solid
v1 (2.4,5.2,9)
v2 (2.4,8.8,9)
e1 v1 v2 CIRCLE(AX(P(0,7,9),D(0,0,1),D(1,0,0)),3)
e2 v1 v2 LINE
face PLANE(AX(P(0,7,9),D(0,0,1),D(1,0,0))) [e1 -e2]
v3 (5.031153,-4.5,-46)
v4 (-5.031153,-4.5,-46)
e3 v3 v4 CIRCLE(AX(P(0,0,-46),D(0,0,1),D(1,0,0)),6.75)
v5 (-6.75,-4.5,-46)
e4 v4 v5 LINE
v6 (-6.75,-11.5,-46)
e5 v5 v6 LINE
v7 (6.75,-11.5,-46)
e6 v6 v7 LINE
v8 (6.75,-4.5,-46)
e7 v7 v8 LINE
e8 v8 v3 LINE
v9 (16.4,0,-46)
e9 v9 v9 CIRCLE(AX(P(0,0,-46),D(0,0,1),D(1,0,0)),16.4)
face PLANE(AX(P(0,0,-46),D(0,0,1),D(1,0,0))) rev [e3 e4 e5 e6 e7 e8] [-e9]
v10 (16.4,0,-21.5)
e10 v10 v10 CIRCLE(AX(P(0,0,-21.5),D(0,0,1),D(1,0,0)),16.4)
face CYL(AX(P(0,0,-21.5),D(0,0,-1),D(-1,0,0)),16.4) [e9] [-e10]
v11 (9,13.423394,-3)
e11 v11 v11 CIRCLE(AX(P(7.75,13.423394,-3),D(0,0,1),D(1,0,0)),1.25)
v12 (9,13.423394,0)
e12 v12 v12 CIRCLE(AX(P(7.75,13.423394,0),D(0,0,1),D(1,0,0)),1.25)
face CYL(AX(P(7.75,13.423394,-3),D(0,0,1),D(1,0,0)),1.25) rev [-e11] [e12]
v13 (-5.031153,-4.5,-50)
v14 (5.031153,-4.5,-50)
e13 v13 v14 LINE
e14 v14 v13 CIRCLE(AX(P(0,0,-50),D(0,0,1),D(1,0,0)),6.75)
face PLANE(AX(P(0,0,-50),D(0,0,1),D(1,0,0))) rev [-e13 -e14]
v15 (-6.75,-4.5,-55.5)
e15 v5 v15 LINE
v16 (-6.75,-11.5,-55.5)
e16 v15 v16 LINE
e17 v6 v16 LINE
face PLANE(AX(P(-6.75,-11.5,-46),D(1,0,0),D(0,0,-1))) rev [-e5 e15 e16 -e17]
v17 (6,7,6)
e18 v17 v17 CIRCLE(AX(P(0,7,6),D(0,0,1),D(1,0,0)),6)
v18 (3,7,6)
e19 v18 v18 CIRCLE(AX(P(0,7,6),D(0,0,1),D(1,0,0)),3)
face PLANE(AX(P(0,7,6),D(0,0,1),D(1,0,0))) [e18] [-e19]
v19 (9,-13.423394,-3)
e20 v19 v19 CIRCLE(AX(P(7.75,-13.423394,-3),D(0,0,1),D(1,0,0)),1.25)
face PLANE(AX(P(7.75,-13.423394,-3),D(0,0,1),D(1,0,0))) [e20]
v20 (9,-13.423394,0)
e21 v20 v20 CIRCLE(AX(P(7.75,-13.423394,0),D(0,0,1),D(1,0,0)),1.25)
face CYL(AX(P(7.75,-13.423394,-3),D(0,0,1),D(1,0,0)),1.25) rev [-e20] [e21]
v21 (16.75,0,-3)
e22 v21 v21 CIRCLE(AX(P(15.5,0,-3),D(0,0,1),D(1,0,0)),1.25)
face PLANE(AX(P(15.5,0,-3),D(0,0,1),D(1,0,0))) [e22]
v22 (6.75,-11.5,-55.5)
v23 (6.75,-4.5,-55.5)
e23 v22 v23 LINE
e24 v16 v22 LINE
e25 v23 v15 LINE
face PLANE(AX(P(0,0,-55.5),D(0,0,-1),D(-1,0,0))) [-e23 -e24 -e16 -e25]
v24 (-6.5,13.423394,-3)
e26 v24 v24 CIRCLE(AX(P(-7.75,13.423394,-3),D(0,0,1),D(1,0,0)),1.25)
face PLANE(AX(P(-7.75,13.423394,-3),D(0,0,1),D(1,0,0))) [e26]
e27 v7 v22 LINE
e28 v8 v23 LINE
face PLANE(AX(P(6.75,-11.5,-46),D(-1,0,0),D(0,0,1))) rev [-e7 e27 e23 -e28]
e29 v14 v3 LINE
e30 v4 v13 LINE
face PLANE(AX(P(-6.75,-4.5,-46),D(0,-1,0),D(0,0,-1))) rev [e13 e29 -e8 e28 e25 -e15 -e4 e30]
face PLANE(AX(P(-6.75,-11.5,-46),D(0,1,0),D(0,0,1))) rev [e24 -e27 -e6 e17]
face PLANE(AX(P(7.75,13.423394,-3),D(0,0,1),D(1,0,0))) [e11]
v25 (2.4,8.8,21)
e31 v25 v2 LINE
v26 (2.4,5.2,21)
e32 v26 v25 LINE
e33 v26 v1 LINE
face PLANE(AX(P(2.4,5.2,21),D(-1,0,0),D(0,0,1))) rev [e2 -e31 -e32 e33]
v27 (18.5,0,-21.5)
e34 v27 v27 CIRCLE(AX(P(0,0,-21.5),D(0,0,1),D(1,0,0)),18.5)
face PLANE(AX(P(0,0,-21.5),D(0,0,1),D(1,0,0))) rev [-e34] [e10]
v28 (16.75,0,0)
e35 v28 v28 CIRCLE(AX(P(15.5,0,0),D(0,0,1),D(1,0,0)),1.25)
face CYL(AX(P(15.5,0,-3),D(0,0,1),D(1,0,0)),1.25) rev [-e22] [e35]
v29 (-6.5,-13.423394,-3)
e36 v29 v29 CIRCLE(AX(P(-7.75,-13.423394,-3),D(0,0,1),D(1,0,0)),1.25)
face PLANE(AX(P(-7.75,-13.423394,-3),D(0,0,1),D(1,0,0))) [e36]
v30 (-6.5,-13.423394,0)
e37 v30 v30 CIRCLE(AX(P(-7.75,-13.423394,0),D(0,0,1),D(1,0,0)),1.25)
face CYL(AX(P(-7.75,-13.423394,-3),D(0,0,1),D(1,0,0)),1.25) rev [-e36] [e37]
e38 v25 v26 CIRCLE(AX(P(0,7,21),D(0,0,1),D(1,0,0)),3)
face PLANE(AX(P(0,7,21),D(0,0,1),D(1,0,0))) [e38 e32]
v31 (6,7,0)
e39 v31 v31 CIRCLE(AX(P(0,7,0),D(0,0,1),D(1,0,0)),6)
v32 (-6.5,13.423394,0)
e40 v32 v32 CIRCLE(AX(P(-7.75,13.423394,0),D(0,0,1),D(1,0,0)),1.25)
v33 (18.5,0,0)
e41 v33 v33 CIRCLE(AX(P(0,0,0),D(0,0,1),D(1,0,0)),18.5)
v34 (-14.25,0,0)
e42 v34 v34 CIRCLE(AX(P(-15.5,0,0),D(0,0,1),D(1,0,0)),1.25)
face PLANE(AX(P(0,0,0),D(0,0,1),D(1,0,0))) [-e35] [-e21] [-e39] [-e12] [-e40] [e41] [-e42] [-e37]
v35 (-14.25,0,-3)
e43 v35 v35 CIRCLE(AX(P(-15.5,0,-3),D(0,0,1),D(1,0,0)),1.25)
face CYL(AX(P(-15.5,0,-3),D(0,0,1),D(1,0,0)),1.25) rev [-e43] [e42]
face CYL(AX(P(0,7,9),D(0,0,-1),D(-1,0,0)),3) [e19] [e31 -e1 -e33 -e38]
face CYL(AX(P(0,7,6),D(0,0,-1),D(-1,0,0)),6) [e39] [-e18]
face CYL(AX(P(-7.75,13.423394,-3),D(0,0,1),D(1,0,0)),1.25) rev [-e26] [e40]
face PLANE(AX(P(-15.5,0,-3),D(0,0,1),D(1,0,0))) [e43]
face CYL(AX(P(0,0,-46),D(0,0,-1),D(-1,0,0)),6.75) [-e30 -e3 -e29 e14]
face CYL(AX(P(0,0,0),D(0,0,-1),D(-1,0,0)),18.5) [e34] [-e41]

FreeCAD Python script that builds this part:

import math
import FreeCAD as App
import Part
import Sketcher
from FreeCAD import Vector
Q = App.Units.Quantity


def add_polygon(sketch, points):
    """Adds a closed chain of lines whose ends are joined by coincident constraints."""
    first, n = sketch.GeometryCount, len(points)
    for a, b in zip(points, points[1:] + points[:1]):
        sketch.addGeometry(Part.LineSegment(App.Vector(*a, 0), App.Vector(*b, 0)), False)
    for i in range(n):
        sketch.addConstraint(Sketcher.Constraint("Coincident", first + i, 2, first + (i + 1) % n, 1))

doc = App.newDocument("Part")
body = doc.addObject("PartDesign::Body", "Body")

sketch1 = body.newObject("Sketcher::SketchObject", "Sketch")
sketch1.AttachmentSupport = (doc.getObject("XY_Plane"), [""])
sketch1.MapMode = "FlatFace"
sketch1.AttachmentOffset = App.Placement(Vector(0, 0, -21.5), App.Rotation())
sketch1.addGeometry(Part.Circle(Vector(0, 0, 0), Vector(0, 0, 1), 18.5), False)
sketch1.addConstraint(Sketcher.Constraint("Coincident", 0, 3, -1, 1))
sketch1.addConstraint(Sketcher.Constraint("Diameter", 0, Q("37 mm")))
pad1 = body.newObject("PartDesign::Pad", "Pad")
pad1.Profile = sketch1
pad1.Length = 21.5

sketch2 = body.newObject("Sketcher::SketchObject", "Sketch001")
sketch2.AttachmentSupport = (doc.getObject("XY_Plane"), [""])
sketch2.MapMode = "FlatFace"
sketch2.AttachmentOffset = App.Placement(Vector(0, 0, -44.5), App.Rotation())
sketch2.addGeometry(Part.Circle(Vector(0, 0, 0), Vector(0, 0, 1), 16.4), False)
sketch2.addConstraint(Sketcher.Constraint("Coincident", 0, 3, -1, 1))
sketch2.addConstraint(Sketcher.Constraint("Diameter", 0, Q("32.8 mm")))
pad2 = body.newObject("PartDesign::Pad", "Pad001")
pad2.Profile = sketch2
pad2.Length = 23

sketch3 = body.newObject("Sketcher::SketchObject", "Sketch002")
sketch3.AttachmentSupport = (doc.getObject("XY_Plane"), [""])
sketch3.MapMode = "FlatFace"
sketch3.AttachmentOffset = App.Placement(Vector(0, 0, -46), App.Rotation())
sketch3.addGeometry(Part.Circle(Vector(0, 0, 0), Vector(0, 0, 1), 16.4), False)
sketch3.addConstraint(Sketcher.Constraint("Coincident", 0, 3, -1, 1))
sketch3.addConstraint(Sketcher.Constraint("Diameter", 0, Q("32.8 mm")))
pad3 = body.newObject("PartDesign::Pad", "Pad002")
pad3.Profile = sketch3
pad3.Length = 1.5

sketch4 = body.newObject("Sketcher::SketchObject", "Sketch003")
sketch4.AttachmentSupport = (doc.getObject("XY_Plane"), [""])
sketch4.MapMode = "FlatFace"
sketch4.AttachmentOffset = App.Placement(Vector(0, 0, -50), App.Rotation())
sketch4.addGeometry(Part.Circle(Vector(0, 0, 0), Vector(0, 0, 1), 6.75), False)
sketch4.addConstraint(Sketcher.Constraint("Coincident", 0, 3, -1, 1))
sketch4.addConstraint(Sketcher.Constraint("Diameter", 0, Q("13.5 mm")))
pad4 = body.newObject("PartDesign::Pad", "Pad003")
pad4.Profile = sketch4
pad4.Length = 4

sketch5 = body.newObject("Sketcher::SketchObject", "Sketch004")
sketch5.AttachmentSupport = (doc.getObject("XY_Plane"), [""])
sketch5.MapMode = "FlatFace"
sketch5.AttachmentOffset = App.Placement(Vector(0, 0, -55.5), App.Rotation())
add_polygon(sketch5, [(-6.75, -4.5), (-6.75, -11.5), (6.75, -11.5), (6.75, -4.5)])
sketch5.addConstraint(Sketcher.Constraint("Vertical", 0))
sketch5.addConstraint(Sketcher.Constraint("Horizontal", 1))
sketch5.addConstraint(Sketcher.Constraint("Vertical", 2))
sketch5.addConstraint(Sketcher.Constraint("Horizontal", 3))
sketch5.addConstraint(Sketcher.Constraint("DistanceY", 0, 2, 0, 1, Q("7 mm")))
sketch5.addConstraint(Sketcher.Constraint("DistanceX", 1, 1, 1, 2, Q("13.5 mm")))
sketch5.addConstraint(Sketcher.Constraint("DistanceY", 0, 2, -1, 1, Q("11.5 mm")))
sketch5.addConstraint(Sketcher.Constraint("DistanceX", 0, 2, -1, 1, Q("6.75 mm")))
pad5 = body.newObject("PartDesign::Pad", "Pad004")
pad5.Profile = sketch5
pad5.Length = 9.5

sketch6 = body.newObject("Sketcher::SketchObject", "Sketch005")
sketch6.AttachmentSupport = (doc.getObject("XY_Plane"), [""])
sketch6.MapMode = "FlatFace"
sketch6.addGeometry(Part.Circle(Vector(0, 7, 0), Vector(0, 0, 1), 6), False)
sketch6.addConstraint(Sketcher.Constraint("PointOnObject", 0, 3, -2))
sketch6.addConstraint(Sketcher.Constraint("Diameter", 0, Q("12 mm")))
sketch6.addConstraint(Sketcher.Constraint("DistanceY", -1, 1, 0, 3, Q("7 mm")))
pad6 = body.newObject("PartDesign::Pad", "Pad005")
pad6.Profile = sketch6
pad6.Length = 6

sketch7 = body.newObject("Sketcher::SketchObject", "Sketch006")
sketch7.AttachmentSupport = (doc.getObject("XY_Plane"), [""])
sketch7.MapMode = "FlatFace"
sketch7.AttachmentOffset = App.Placement(Vector(0, 0, 6), App.Rotation())
sketch7.addGeometry(Part.Circle(Vector(0, 7, 0), Vector(0, 0, 1), 3), False)
sketch7.addConstraint(Sketcher.Constraint("PointOnObject", 0, 3, -2))
sketch7.addConstraint(Sketcher.Constraint("Diameter", 0, Q("6 mm")))
sketch7.addConstraint(Sketcher.Constraint("DistanceY", -1, 1, 0, 3, Q("7 mm")))
pad7 = body.newObject("PartDesign::Pad", "Pad006")
pad7.Profile = sketch7
pad7.Length = 3

sketch8 = body.newObject("Sketcher::SketchObject", "Sketch007")
sketch8.AttachmentSupport = (doc.getObject("XY_Plane"), [""])
sketch8.MapMode = "FlatFace"
sketch8.AttachmentOffset = App.Placement(Vector(0, 0, 9), App.Rotation())
sketch8.addGeometry(Part.LineSegment(Vector(2.4, 5.2, 0), Vector(2.4, 8.8, 0)), False)
sketch8.addGeometry(Part.ArcOfCircle(Part.Circle(Vector(0, 7, 0), Vector(0, 0, 1), 3), math.radians(36.869898), math.radians(323.130102)), False)
sketch8.addConstraint(Sketcher.Constraint("Coincident", 0, 1, 1, 2))
sketch8.addConstraint(Sketcher.Constraint("Coincident", 1, 1, 0, 2))
sketch8.addConstraint(Sketcher.Constraint("Vertical", 0))
sketch8.addConstraint(Sketcher.Constraint("PointOnObject", 1, 3, -2))
sketch8.addConstraint(Sketcher.Constraint("Radius", 1, Q("3 mm")))
sketch8.addConstraint(Sketcher.Constraint("DistanceY", 0, 1, 0, 2, Q("3.6 mm")))
sketch8.addConstraint(Sketcher.Constraint("DistanceY", -1, 1, 1, 3, Q("7 mm")))
pad8 = body.newObject("PartDesign::Pad", "Pad007")
pad8.Profile = sketch8
pad8.Length = 12

sketch9 = body.newObject("Sketcher::SketchObject", "Sketch008")
sketch9.AttachmentSupport = (doc.getObject("XY_Plane"), [""])
sketch9.MapMode = "FlatFace"
sketch9.addGeometry(Part.Circle(Vector(15.5, 0, 0), Vector(0, 0, 1), 1.25), False)
sketch9.addGeometry(Part.Circle(Vector(7.75, 13.423394, 0), Vector(0, 0, 1), 1.25), False)
sketch9.addGeometry(Part.Circle(Vector(-7.75, 13.423394, 0), Vector(0, 0, 1), 1.25), False)
sketch9.addGeometry(Part.Circle(Vector(-15.5, 0, 0), Vector(0, 0, 1), 1.25), False)
sketch9.addGeometry(Part.Circle(Vector(-7.75, -13.423394, 0), Vector(0, 0, 1), 1.25), False)
sketch9.addGeometry(Part.Circle(Vector(7.75, -13.423394, 0), Vector(0, 0, 1), 1.25), False)
sketch9.addConstraint(Sketcher.Constraint("Equal", 0, 1))
sketch9.addConstraint(Sketcher.Constraint("Equal", 1, 2))
sketch9.addConstraint(Sketcher.Constraint("Equal", 2, 3))
sketch9.addConstraint(Sketcher.Constraint("Equal", 3, 4))
sketch9.addConstraint(Sketcher.Constraint("Equal", 4, 5))
sketch9.addConstraint(Sketcher.Constraint("Symmetric", 0, 3, 3, 3, -1, 1))
sketch9.addConstraint(Sketcher.Constraint("Symmetric", 1, 3, 4, 3, -1, 1))
sketch9.addConstraint(Sketcher.Constraint("Symmetric", 2, 3, 5, 3, -1, 1))
sketch9.addConstraint(Sketcher.Constraint("Symmetric", 1, 3, 2, 3, -2))
sketch9.addConstraint(Sketcher.Constraint("PointOnObject", 0, 3, -1))
sketch9.addConstraint(Sketcher.Constraint("Diameter", 0, Q("2.5 mm")))
sketch9.addConstraint(Sketcher.Constraint("DistanceX", 3, 3, 0, 3, Q("31 mm")))
sketch9.addConstraint(Sketcher.Constraint("DistanceX", 2, 3, 1, 3, Q("15.5 mm")))
sketch9.addConstraint(Sketcher.Constraint("DistanceY", -1, 1, 1, 3, Q("13.423394 mm")))
pocket1 = body.newObject("PartDesign::Pocket", "Pocket")
pocket1.Profile = sketch9
pocket1.Length = 3

doc.recompute()
